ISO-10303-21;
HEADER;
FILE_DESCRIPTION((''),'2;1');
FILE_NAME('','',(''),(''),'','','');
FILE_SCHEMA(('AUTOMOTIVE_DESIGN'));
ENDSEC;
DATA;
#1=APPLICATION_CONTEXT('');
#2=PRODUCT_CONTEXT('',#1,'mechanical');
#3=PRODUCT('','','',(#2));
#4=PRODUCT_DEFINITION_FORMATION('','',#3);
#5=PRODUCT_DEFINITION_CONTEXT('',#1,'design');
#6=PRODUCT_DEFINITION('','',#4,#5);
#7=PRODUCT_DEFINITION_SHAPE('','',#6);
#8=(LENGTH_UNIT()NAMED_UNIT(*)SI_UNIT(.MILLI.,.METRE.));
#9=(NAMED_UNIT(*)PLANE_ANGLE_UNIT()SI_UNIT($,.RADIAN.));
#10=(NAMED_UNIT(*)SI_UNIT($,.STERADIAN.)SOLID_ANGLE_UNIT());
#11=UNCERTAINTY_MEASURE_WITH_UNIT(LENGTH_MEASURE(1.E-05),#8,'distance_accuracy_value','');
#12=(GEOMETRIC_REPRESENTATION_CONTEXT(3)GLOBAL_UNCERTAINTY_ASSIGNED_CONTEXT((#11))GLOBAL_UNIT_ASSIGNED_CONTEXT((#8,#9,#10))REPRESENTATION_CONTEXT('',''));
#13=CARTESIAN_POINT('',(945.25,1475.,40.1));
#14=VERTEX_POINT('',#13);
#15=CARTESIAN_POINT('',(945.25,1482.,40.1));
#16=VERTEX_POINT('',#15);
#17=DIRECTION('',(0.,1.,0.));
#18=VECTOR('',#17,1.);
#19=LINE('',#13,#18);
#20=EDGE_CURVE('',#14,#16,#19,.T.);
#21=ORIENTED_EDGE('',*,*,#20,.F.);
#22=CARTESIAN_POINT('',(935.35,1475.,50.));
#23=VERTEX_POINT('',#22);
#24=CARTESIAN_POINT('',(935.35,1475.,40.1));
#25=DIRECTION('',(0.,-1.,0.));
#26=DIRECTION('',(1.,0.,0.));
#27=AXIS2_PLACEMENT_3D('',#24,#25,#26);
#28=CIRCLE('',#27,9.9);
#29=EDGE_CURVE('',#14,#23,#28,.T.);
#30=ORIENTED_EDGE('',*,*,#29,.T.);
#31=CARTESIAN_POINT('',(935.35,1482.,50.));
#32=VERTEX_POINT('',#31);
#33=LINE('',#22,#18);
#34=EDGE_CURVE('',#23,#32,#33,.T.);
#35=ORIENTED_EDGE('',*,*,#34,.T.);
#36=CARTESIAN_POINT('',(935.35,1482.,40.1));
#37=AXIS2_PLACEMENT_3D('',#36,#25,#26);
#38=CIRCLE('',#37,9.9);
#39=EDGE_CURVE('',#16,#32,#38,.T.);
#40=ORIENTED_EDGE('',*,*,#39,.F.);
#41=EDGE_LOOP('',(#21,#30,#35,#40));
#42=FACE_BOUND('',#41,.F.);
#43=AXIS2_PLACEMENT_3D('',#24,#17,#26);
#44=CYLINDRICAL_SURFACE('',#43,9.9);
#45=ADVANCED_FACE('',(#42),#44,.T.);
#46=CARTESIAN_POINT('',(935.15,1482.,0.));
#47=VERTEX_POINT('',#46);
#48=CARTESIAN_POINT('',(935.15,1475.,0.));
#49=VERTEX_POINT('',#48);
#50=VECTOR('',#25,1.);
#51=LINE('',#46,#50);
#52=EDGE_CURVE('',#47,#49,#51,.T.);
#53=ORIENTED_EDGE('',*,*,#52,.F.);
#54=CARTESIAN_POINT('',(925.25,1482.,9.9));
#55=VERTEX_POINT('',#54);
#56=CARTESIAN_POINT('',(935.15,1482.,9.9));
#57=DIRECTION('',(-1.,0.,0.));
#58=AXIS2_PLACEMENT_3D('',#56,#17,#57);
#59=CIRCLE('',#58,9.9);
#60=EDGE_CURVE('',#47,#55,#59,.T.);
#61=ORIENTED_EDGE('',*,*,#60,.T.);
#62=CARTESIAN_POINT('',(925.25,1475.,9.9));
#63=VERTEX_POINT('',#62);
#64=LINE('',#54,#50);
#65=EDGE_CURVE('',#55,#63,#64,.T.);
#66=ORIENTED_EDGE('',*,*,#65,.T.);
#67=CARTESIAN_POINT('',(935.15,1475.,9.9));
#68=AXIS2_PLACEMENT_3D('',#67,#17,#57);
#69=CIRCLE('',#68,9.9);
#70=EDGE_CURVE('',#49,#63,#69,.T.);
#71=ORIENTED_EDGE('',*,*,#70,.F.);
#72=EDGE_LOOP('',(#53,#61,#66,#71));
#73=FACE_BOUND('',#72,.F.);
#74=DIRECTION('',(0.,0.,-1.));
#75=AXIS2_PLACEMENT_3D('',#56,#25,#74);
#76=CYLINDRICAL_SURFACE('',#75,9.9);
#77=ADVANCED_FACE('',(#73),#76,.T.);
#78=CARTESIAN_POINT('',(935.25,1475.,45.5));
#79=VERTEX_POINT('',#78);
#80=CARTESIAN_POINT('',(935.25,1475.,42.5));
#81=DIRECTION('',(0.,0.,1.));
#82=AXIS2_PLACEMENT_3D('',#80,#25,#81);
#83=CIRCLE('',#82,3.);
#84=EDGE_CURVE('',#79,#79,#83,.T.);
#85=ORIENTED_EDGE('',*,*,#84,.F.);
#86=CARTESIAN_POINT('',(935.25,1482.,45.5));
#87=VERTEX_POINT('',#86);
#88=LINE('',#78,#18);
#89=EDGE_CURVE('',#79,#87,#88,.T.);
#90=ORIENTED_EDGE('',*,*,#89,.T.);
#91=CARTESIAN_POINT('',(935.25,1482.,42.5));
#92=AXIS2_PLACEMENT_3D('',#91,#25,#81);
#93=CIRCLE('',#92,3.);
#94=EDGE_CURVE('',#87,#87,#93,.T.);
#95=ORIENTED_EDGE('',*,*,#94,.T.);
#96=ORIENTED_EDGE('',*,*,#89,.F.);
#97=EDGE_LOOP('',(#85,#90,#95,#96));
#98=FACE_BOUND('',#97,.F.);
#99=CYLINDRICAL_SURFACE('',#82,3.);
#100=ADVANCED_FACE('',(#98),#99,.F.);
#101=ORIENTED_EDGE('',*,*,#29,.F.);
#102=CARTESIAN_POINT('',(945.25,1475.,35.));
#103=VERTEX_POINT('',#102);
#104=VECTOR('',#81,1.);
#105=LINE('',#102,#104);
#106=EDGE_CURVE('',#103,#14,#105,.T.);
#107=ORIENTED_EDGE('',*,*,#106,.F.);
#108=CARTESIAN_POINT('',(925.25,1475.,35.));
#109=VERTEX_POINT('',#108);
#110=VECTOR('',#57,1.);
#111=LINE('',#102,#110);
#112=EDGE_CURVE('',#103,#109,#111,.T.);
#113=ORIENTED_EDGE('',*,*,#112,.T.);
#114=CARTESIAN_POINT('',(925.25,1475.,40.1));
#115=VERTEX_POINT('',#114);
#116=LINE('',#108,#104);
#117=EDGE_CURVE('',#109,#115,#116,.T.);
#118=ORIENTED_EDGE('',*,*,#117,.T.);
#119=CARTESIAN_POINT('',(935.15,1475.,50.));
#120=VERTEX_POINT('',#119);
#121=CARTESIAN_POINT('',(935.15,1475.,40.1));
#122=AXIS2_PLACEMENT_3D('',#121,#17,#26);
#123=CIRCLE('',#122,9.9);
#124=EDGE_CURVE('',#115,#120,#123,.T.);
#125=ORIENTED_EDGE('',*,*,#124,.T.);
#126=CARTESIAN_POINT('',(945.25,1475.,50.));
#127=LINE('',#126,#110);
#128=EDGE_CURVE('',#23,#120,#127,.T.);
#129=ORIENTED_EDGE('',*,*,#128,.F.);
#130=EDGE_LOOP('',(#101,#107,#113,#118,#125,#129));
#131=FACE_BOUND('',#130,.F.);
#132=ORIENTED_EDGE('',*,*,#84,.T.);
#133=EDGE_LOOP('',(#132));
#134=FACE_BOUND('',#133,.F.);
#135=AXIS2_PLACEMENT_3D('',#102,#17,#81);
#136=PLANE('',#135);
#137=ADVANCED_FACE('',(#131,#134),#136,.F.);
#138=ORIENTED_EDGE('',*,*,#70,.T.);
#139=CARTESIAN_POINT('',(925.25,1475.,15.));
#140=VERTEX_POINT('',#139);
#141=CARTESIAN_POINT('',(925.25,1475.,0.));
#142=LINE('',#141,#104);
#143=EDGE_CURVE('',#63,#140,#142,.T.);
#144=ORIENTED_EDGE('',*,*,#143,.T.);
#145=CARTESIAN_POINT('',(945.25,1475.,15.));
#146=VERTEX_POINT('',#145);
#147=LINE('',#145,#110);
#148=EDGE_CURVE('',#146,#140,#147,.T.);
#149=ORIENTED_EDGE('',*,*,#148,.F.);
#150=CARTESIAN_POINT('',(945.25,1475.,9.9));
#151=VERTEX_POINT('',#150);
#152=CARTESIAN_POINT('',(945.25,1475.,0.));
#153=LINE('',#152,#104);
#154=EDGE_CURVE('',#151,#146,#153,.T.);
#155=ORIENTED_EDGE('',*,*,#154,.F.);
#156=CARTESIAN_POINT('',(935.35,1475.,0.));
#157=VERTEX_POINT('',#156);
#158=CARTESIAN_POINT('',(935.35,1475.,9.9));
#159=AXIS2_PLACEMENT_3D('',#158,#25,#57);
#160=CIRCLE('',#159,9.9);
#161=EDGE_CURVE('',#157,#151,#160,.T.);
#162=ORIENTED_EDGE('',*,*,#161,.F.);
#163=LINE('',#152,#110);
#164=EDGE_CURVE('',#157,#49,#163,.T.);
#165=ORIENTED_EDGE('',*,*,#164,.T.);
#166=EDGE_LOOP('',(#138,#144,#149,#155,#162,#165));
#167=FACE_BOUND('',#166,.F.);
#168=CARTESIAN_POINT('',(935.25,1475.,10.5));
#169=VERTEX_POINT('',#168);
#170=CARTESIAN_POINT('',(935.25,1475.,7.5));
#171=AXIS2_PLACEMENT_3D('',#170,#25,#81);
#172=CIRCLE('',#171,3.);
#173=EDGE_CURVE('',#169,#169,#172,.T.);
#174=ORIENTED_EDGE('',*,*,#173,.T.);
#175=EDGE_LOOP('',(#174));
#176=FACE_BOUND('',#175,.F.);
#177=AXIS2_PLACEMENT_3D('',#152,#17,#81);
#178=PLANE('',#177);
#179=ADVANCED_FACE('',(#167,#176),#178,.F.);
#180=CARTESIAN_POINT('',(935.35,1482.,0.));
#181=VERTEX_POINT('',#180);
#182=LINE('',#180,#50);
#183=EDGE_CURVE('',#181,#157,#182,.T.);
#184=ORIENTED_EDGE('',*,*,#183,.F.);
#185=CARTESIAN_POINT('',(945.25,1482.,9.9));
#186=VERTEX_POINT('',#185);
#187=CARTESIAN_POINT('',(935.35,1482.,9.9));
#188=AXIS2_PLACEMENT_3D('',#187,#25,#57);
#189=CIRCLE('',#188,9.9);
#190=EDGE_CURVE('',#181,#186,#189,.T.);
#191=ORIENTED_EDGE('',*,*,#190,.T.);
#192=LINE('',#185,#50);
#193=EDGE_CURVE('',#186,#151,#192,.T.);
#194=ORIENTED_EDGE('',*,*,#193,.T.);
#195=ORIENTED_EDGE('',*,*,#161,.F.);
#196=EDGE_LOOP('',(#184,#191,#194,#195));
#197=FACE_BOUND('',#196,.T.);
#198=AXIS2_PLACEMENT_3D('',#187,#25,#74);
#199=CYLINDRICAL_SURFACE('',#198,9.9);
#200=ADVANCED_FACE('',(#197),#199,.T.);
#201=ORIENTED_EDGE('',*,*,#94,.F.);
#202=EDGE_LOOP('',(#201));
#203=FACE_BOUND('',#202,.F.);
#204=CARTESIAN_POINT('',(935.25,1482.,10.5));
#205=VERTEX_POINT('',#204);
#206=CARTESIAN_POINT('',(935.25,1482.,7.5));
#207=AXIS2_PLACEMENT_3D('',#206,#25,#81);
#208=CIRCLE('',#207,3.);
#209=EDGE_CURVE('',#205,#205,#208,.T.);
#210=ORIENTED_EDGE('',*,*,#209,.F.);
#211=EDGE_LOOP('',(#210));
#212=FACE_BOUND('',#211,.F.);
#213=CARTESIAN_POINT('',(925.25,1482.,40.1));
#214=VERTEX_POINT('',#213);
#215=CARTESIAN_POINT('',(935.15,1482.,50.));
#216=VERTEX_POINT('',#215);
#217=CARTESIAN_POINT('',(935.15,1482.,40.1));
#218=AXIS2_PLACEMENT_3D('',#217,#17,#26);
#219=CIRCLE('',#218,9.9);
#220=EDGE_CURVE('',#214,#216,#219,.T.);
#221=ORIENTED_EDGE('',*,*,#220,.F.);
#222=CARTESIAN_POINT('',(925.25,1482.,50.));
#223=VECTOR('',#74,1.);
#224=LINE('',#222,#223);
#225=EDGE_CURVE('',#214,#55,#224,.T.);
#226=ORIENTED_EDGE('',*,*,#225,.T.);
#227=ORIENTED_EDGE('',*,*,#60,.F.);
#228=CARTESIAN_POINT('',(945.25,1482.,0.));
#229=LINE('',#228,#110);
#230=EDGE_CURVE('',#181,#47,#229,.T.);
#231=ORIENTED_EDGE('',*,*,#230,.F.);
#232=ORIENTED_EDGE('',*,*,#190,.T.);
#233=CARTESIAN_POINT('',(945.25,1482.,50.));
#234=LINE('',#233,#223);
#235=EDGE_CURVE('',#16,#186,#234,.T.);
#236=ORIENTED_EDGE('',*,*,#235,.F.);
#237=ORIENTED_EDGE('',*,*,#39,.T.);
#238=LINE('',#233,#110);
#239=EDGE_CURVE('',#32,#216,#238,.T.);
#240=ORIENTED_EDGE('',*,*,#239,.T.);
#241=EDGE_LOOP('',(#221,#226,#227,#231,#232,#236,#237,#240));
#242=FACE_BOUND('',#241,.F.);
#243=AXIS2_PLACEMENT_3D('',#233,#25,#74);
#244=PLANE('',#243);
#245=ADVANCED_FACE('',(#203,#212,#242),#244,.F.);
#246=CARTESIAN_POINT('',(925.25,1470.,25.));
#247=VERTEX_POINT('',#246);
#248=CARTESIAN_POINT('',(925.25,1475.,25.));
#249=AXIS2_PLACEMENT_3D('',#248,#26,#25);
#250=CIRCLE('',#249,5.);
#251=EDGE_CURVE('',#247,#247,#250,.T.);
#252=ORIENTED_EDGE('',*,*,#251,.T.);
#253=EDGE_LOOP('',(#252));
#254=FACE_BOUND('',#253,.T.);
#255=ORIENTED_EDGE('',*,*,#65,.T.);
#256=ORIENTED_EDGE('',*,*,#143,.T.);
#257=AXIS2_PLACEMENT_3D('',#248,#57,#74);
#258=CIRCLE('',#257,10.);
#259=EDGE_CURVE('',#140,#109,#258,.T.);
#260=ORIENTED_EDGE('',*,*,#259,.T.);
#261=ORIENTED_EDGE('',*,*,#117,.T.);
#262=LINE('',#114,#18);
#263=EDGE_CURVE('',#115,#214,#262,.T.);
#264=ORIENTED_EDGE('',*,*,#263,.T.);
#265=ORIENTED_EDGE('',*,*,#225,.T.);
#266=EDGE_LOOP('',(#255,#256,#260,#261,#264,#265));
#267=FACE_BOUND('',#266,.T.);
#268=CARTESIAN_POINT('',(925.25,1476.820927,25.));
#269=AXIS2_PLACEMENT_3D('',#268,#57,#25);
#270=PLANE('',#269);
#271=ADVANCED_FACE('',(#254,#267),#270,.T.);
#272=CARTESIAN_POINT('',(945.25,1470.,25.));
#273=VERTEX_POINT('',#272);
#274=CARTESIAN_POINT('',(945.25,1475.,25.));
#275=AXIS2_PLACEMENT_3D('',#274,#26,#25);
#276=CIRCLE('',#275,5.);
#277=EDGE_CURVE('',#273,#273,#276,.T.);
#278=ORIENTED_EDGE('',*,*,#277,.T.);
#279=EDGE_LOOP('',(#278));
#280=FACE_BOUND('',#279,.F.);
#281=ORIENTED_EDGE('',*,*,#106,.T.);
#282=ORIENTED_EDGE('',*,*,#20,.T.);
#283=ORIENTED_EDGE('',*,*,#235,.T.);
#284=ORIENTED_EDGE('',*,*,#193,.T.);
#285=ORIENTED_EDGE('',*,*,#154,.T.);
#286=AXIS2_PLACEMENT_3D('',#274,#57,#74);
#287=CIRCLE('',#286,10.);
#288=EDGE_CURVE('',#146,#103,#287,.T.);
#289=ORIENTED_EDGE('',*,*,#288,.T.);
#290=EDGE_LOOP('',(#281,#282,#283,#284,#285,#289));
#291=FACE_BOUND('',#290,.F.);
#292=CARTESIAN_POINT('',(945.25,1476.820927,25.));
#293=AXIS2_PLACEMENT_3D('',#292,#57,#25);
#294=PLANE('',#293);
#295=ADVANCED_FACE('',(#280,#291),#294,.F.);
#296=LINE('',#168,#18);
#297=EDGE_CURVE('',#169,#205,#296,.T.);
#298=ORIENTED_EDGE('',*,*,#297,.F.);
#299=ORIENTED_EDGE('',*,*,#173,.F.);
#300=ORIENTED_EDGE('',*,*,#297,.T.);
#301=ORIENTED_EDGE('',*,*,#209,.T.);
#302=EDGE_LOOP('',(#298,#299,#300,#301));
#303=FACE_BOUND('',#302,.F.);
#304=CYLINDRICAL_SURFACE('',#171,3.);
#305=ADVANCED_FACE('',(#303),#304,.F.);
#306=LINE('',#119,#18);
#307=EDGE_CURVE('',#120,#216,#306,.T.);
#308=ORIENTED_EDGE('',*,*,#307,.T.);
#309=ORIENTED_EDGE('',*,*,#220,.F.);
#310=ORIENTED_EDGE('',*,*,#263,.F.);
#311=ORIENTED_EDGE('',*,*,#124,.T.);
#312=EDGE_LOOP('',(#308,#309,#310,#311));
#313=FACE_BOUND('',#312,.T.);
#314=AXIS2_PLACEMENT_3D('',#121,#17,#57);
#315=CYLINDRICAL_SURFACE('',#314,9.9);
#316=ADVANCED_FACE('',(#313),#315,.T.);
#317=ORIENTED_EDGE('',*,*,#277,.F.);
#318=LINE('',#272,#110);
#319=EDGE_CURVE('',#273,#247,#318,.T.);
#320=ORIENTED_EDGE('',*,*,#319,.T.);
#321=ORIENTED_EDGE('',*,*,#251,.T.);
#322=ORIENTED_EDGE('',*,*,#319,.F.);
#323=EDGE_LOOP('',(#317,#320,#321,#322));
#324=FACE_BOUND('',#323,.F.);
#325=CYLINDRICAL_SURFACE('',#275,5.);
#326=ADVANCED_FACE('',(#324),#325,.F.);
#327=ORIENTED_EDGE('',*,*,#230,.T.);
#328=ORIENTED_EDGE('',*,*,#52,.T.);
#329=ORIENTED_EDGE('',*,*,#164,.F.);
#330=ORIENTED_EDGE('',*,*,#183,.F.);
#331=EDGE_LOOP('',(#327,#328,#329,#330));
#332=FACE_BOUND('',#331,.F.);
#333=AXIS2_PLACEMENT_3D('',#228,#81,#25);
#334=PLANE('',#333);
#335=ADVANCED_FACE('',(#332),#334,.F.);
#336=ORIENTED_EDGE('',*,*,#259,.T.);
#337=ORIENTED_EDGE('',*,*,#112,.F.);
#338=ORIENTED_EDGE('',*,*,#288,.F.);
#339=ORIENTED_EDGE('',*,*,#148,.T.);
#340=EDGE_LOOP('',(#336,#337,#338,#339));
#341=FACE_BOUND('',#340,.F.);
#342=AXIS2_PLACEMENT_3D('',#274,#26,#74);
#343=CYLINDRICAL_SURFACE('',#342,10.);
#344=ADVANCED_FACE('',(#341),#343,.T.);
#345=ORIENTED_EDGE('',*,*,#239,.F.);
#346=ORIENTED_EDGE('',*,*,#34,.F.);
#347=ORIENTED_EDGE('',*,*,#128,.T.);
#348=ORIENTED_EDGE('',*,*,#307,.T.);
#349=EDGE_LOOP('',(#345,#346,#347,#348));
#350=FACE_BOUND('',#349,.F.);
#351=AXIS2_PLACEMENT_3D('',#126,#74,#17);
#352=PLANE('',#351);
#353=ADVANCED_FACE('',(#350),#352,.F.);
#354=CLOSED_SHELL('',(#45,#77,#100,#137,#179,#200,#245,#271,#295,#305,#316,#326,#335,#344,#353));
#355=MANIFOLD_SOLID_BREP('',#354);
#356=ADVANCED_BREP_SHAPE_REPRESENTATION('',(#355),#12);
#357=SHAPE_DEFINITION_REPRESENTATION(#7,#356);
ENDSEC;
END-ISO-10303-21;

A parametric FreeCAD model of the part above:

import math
import FreeCAD as App
import Part
import Sketcher
from FreeCAD import Vector


def edges_at(feature, points):
    """Names of the edges that pass closest to the given points."""
    edges = feature.Shape.Edges
    near = lambda p: min(range(len(edges)), key=lambda i: edges[i].distToShape(Part.Vertex(*p))[0])
    return sorted({f"Edge{near(p) + 1}" for p in points})

doc = App.newDocument("Part")
body = doc.addObject("PartDesign::Body", "Body")

sketch1 = doc.addObject("Sketcher::SketchObject", "Sketch")
body.addObject(sketch1)
sketch1.AttachmentSupport = (doc.XY_Plane, [""])
sketch1.MapMode = "FlatFace"
sketch1.addGeometry(Part.LineSegment(Vector(18, 0, 0), Vector(25, 0, 0)), False)
sketch1.addGeometry(Part.LineSegment(Vector(25, 0, 0), Vector(25, 15, 0)), False)
sketch1.addGeometry(Part.ArcOfCircle(Part.Circle(Vector(25, 25, 0), Vector(0, 0, 1), 10), math.radians(-90), math.radians(90)), False)
sketch1.addGeometry(Part.LineSegment(Vector(25, 35, 0), Vector(25, 50, 0)), False)
sketch1.addGeometry(Part.LineSegment(Vector(25, 50, 0), Vector(18, 50, 0)), False)
sketch1.addGeometry(Part.LineSegment(Vector(18, 50, 0), Vector(18, 0, 0)), False)
sketch1.addConstraint(Sketcher.Constraint("Coincident", 0, 2, 1, 1))
sketch1.addConstraint(Sketcher.Constraint("Coincident", 1, 2, 2, 1))
sketch1.addConstraint(Sketcher.Constraint("Coincident", 2, 2, 3, 1))
sketch1.addConstraint(Sketcher.Constraint("Coincident", 3, 2, 4, 1))
sketch1.addConstraint(Sketcher.Constraint("Coincident", 4, 2, 5, 1))
sketch1.addConstraint(Sketcher.Constraint("Coincident", 5, 2, 0, 1))
sketch1.addConstraint(Sketcher.Constraint("Horizontal", 0))
sketch1.addConstraint(Sketcher.Constraint("Vertical", 1))
sketch1.addConstraint(Sketcher.Constraint("Vertical", 3))
sketch1.addConstraint(Sketcher.Constraint("Horizontal", 4))
sketch1.addConstraint(Sketcher.Constraint("Vertical", 5))
sketch1.addConstraint(Sketcher.Constraint("PointOnObject", 0, 2, -1))
sketch1.addConstraint(Sketcher.Constraint("Vertical", 2, 3, 0, 2))
sketch1.addConstraint(Sketcher.Constraint("Vertical", 1, 2, 2, 2))
sketch1.addConstraint(Sketcher.Constraint("Equal", 1, 3))
sketch1.addConstraint(Sketcher.Constraint("Radius", 2, 10.0))
sketch1.addConstraint(Sketcher.Constraint("DistanceX", 0, 1, 0, 2, 7.0))
sketch1.addConstraint(Sketcher.Constraint("DistanceY", 1, 1, 1, 2, 15.0))
sketch1.addConstraint(Sketcher.Constraint("DistanceX", -1, 1, 2, 3, 25.0))
pad1 = doc.addObject("PartDesign::Pad", "Pad")
body.addObject(pad1)
pad1.Profile = sketch1
pad1.Length = 20

sketch2 = doc.addObject("Sketcher::SketchObject", "Sketch001")
body.addObject(sketch2)
sketch2.AttachmentSupport = (doc.XY_Plane, [""])
sketch2.MapMode = "FlatFace"
sketch2.addGeometry(Part.Circle(Vector(25, 25, 0), Vector(0, 0, 1), 5), False)
sketch2.addConstraint(Sketcher.Constraint("Diameter", 0, 10.0))
sketch2.addConstraint(Sketcher.Constraint("DistanceX", -1, 1, 0, 3, 25.0))
sketch2.addConstraint(Sketcher.Constraint("DistanceY", -1, 1, 0, 3, 25.0))
pocket1 = doc.addObject("PartDesign::Pocket", "Pocket")
body.addObject(pocket1)
pocket1.Profile = sketch2
pocket1.Type = "ThroughAll"
pocket1.Reversed = True
doc.recompute()

fillet = doc.addObject("PartDesign::Fillet", "Fillet")
body.addObject(fillet)
fillet.Base = (pocket1, edges_at(pocket1, [
    (21.5, 0, 0),
    (21.5, 50, 0),
    (21.5, 50, 20),
    (21.5, 0, 20),
]))
fillet.Radius = 9.9

sketch3 = doc.addObject("Sketcher::SketchObject", "Sketch002")
body.addObject(sketch3)
sketch3.AttachmentSupport = (doc.YZ_Plane, [""])
sketch3.MapMode = "FlatFace"
sketch3.AttachmentOffset = App.Placement(Vector(0, 0, 25), App.Rotation())
sketch3.addGeometry(Part.Circle(Vector(7.5, 10, 0), Vector(0, 0, 1), 3), False)
sketch3.addGeometry(Part.Circle(Vector(42.5, 10, 0), Vector(0, 0, 1), 3), False)
sketch3.addConstraint(Sketcher.Constraint("Equal", 0, 1))
sketch3.addConstraint(Sketcher.Constraint("Horizontal", 0, 3, 1, 3))
sketch3.addConstraint(Sketcher.Constraint("Diameter", 0, 6.0))
sketch3.addConstraint(Sketcher.Constraint("DistanceY", -1, 1, 0, 3, 10.0))
sketch3.addConstraint(Sketcher.Constraint("DistanceX", 0, 3, 1, 3, 35.0))
sketch3.addConstraint(Sketcher.Constraint("DistanceX", -1, 1, 0, 3, 7.5))
pocket2 = doc.addObject("PartDesign::Pocket", "Pocket001")
body.addObject(pocket2)
pocket2.Profile = sketch3
pocket2.Type = "ThroughAll"
body2 = doc.addObject("PartDesign::Body", "Body001")
doc.recompute()

body.Placement = App.Placement(Vector(0, 0, 0), App.Rotation(Vector(1, 0, 0), 90))
boolean = doc.addObject("PartDesign::Boolean", "Boolean")
body2.addObject(boolean)
boolean.Type = "Fuse"
boolean.addObjects([body])
body3 = doc.addObject("PartDesign::Body", "Body002")
doc.recompute()

body2.Placement = App.Placement(Vector(120.75, 1500, 0), App.Rotation(Vector(0, 0, 1), 270))
boolean2 = doc.addObject("PartDesign::Boolean", "Boolean001")
body3.addObject(boolean2)
boolean2.Type = "Fuse"
boolean2.addObjects([body2])
body4 = doc.addObject("PartDesign::Body", "Body003")
doc.recompute()

body3.Placement = App.Placement(Vector(824.5, 0, 0), App.Rotation(Vector(0, 0, 1), 0))
boolean3 = doc.addObject("PartDesign::Boolean", "Boolean002")
body4.addObject(boolean3)
boolean3.Type = "Fuse"
boolean3.addObjects([body3])

doc.recompute()
